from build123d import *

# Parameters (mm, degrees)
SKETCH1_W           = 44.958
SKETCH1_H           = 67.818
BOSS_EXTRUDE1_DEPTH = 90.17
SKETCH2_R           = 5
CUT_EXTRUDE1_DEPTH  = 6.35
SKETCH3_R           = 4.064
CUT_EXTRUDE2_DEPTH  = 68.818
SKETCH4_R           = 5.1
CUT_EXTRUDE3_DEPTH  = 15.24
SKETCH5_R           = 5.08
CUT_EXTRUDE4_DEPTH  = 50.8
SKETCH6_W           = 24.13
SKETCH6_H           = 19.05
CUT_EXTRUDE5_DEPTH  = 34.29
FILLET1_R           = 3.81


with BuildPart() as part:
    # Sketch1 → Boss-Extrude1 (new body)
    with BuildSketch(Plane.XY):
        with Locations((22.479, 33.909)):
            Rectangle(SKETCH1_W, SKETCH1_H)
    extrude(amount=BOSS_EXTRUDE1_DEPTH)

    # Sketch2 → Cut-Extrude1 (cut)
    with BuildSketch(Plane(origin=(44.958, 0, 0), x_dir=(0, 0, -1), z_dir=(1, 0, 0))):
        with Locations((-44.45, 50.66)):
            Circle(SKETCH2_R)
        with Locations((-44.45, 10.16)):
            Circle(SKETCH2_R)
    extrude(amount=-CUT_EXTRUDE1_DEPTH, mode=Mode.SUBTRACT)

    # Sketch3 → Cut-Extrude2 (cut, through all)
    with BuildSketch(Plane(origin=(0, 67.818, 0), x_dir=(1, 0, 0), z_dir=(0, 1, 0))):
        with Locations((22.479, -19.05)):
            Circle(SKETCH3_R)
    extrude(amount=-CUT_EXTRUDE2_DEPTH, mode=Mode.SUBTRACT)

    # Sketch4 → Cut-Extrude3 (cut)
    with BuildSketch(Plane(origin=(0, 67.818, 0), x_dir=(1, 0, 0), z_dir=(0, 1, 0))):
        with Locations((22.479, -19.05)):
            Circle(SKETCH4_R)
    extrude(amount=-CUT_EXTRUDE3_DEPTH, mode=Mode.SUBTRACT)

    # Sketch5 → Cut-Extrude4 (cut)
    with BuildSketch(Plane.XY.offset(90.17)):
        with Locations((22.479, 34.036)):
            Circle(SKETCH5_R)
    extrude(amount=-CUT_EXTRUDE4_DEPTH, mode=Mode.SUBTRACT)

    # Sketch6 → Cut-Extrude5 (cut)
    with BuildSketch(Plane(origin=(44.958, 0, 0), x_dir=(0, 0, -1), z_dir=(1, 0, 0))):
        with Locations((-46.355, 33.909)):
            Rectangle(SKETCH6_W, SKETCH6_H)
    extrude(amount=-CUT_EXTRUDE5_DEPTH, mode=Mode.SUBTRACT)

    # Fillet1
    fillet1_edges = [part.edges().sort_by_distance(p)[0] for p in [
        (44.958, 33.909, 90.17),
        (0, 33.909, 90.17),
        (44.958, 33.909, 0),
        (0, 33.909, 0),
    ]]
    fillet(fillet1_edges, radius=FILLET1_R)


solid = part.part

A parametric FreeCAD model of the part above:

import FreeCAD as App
import Part
import Sketcher

V = App.Vector
Q = App.Units.Quantity


def edges_at(feature, points):
    """Names of the edges that pass closest to the given points."""
    edges = feature.Shape.Edges
    near = lambda p: min(range(len(edges)), key=lambda i: edges[i].distToShape(Part.Vertex(*p))[0])
    return sorted({f"Edge{near(p) + 1}" for p in points})


def add_polygon(sketch, points):
    """Adds a closed chain of lines whose ends are joined by coincident constraints."""
    first, n = sketch.GeometryCount, len(points)
    for a, b in zip(points, points[1:] + points[:1]):
        sketch.addGeometry(Part.LineSegment(App.Vector(*a, 0), App.Vector(*b, 0)), False)
    for i in range(n):
        sketch.addConstraint(Sketcher.Constraint("Coincident", first + i, 2, first + (i + 1) % n, 1))

doc = App.newDocument("Part")
params = doc.addObject("Spreadsheet::Sheet", "Params")
for row, (alias, value) in enumerate([
    ("sketch1_width", "1.77 in"),
    ("sketch1_height", "2.67 in"),
    ("pad1_length", "3.55 in"),
    ("pocket1_length", "0.25 in"),
    ("sketch3_diameter", "0.32 in"),
    ("pocket3_length", "0.6 in"),
    ("sketch5_diameter", "0.4 in"),
    ("pocket4_length", "2 in"),
    ("sketch6_width", "0.75 in"),
    ("sketch6_height", "0.95 in"),
    ("pocket5_length", "1.35 in"),
    ("fillet_radius", "0.15 in"),
], start=1):
    params.set(f"A{row}", alias)
    params.set(f"B{row}", "=" + value)
    params.setAlias(f"B{row}", alias)

body = doc.addObject("PartDesign::Body", "Body")

sketch1 = body.newObject("Sketcher::SketchObject", "Sketch")
sketch1.AttachmentSupport = (doc.getObject("XY_Plane"), [""])
sketch1.MapMode = "FlatFace"
add_polygon(sketch1, [(0, 68), (0, 0), (45, 0), (45, 68)])
sketch1.addConstraint([
    Sketcher.Constraint("Vertical", 0),
    Sketcher.Constraint("Horizontal", 1),
    Sketcher.Constraint("Vertical", 2),
    Sketcher.Constraint("Horizontal", 3),
    Sketcher.Constraint("Coincident", 0, 2, -1, 1),
    Sketcher.Constraint("DistanceX", 1, 1, 1, 2, Q("1.77 in")),
    Sketcher.Constraint("DistanceY", 0, 2, 0, 1, Q("2.67 in")),
])
sketch1.setExpression("Constraints[9]", "Params.sketch1_width")
sketch1.setExpression("Constraints[10]", "Params.sketch1_height")
pad1 = body.newObject("PartDesign::Pad", "Pad")
pad1.Profile = sketch1
pad1.setExpression("Length", "Params.pad1_length")

sketch2 = body.newObject("Sketcher::SketchObject", "Sketch001")
sketch2.AttachmentSupport = (doc.getObject("YZ_Plane"), [""])
sketch2.MapMode = "FlatFace"
sketch2.AttachmentOffset = App.Placement(V(0, 0, 1.77 * 25.4), App.Rotation())
sketch2.addGeometry([
    Part.Circle(V(51, 44, 0), V(0, 0, 1), 5),
    Part.Circle(V(10, 44, 0), V(0, 0, 1), 5),
], False)
sketch2.addConstraint([
    Sketcher.Constraint("Equal", 0, 1),
    Sketcher.Constraint("Horizontal", 0, 3, 1, 3),
    Sketcher.Constraint("DistanceX", -1, 1, 1, 3, Q("0.4 in")),
    Sketcher.Constraint("Diameter", 0, Q("10 mm")),
    Sketcher.Constraint("DistanceY", -1, 1, 0, 3, Q("1.75 in")),
    Sketcher.Constraint("DistanceX", -1, 1, 0, 3, Q("50.66 mm")),
])
pocket1 = body.newObject("PartDesign::Pocket", "Pocket")
pocket1.Profile = sketch2
pocket1.setExpression("Length", "Params.pocket1_length")

sketch3 = body.newObject("Sketcher::SketchObject", "Sketch002")
sketch3.AttachmentSupport = (doc.getObject("XZ_Plane"), [""])
sketch3.MapMode = "FlatFace"
sketch3.AttachmentOffset = App.Placement(V(0, 0, -2.67 * 25.4), App.Rotation())
sketch3.addGeometry(Part.Circle(V(22.5, 19.1, 0), V(0, 0, 1), 4.1), False)
sketch3.addConstraint([
    Sketcher.Constraint("Diameter", 0, Q("0.32 in")),
    Sketcher.Constraint("DistanceY", -1, 1, 0, 3, Q("0.75 in")),
    Sketcher.Constraint("DistanceX", -1, 1, 0, 3, Q("0.885 in")),
])
sketch3.setExpression("Constraints[0]", "Params.sketch3_diameter")
pocket2 = body.newObject("PartDesign::Pocket", "Pocket001")
pocket2.Profile = sketch3
pocket2.Type = "ThroughAll"
pocket2.Reversed = True

sketch4 = body.newObject("Sketcher::SketchObject", "Sketch003")
sketch4.AttachmentSupport = (doc.getObject("XZ_Plane"), [""])
sketch4.MapMode = "FlatFace"
sketch4.AttachmentOffset = App.Placement(V(0, 0, -2.67 * 25.4), App.Rotation())
sketch4.addGeometry(Part.Circle(V(22, 19, 0), V(0, 0, 1), 5), False)
sketch4.addConstraint([
    Sketcher.Constraint("Diameter", 0, Q("10.2 mm")),
    Sketcher.Constraint("DistanceY", -1, 1, 0, 3, Q("0.75 in")),
    Sketcher.Constraint("DistanceX", -1, 1, 0, 3, Q("0.885 in")),
])
pocket3 = body.newObject("PartDesign::Pocket", "Pocket002")
pocket3.Profile = sketch4
pocket3.setExpression("Length", "Params.pocket3_length")
pocket3.Reversed = True

sketch5 = body.newObject("Sketcher::SketchObject", "Sketch004")
sketch5.AttachmentSupport = (doc.getObject("XY_Plane"), [""])
sketch5.MapMode = "FlatFace"
sketch5.AttachmentOffset = App.Placement(V(0, 0, 3.55 * 25.4), App.Rotation())
sketch5.addGeometry(Part.Circle(V(22, 34, 0), V(0, 0, 1), 5), False)
sketch5.addConstraint([
    Sketcher.Constraint("Diameter", 0, Q("0.4 in")),
    Sketcher.Constraint("DistanceY", -1, 1, 0, 3, Q("1.34 in")),
    Sketcher.Constraint("DistanceX", -1, 1, 0, 3, Q("0.885 in")),
])
sketch5.setExpression("Constraints[0]", "Params.sketch5_diameter")
pocket4 = body.newObject("PartDesign::Pocket", "Pocket003")
pocket4.Profile = sketch5
pocket4.setExpression("Length", "Params.pocket4_length")

sketch6 = body.newObject("Sketcher::SketchObject", "Sketch005")
sketch6.AttachmentSupport = (doc.getObject("YZ_Plane"), [""])
sketch6.MapMode = "FlatFace"
sketch6.AttachmentOffset = App.Placement(V(0, 0, 1.77 * 25.4), App.Rotation())
add_polygon(sketch6, [(43, 58), (24, 58), (24, 34), (43, 34)])
sketch6.addConstraint([
    Sketcher.Constraint("Horizontal", 0),
    Sketcher.Constraint("Vertical", 1),
    Sketcher.Constraint("Horizontal", 2),
    Sketcher.Constraint("Vertical", 3),
    Sketcher.Constraint("DistanceX", 0, 2, 0, 1, Q("0.75 in")),
    Sketcher.Constraint("DistanceY", 1, 2, 1, 1, Q("0.95 in")),
    Sketcher.Constraint("DistanceY", -1, 1, 0, 2, Q("2.3 in")),
    Sketcher.Constraint("DistanceX", -1, 1, 0, 2, Q("0.96 in")),
])
sketch6.setExpression("Constraints[8]", "Params.sketch6_width")
sketch6.setExpression("Constraints[9]", "Params.sketch6_height")
pocket5 = body.newObject("PartDesign::Pocket", "Pocket004")
pocket5.Profile = sketch6
pocket5.setExpression("Length", "Params.pocket5_length")
doc.recompute()

fillet = body.newObject("PartDesign::Fillet", "Fillet")
fillet.Base = (pocket5, edges_at(pocket5, [
    (44.958, 33.909, 90.17),
    (0, 33.909, 90.17),
    (44.958, 33.909, 0),
    (0, 33.909, 0),
]))
fillet.setExpression("Radius", "Params.fillet_radius")

doc.recompute()
